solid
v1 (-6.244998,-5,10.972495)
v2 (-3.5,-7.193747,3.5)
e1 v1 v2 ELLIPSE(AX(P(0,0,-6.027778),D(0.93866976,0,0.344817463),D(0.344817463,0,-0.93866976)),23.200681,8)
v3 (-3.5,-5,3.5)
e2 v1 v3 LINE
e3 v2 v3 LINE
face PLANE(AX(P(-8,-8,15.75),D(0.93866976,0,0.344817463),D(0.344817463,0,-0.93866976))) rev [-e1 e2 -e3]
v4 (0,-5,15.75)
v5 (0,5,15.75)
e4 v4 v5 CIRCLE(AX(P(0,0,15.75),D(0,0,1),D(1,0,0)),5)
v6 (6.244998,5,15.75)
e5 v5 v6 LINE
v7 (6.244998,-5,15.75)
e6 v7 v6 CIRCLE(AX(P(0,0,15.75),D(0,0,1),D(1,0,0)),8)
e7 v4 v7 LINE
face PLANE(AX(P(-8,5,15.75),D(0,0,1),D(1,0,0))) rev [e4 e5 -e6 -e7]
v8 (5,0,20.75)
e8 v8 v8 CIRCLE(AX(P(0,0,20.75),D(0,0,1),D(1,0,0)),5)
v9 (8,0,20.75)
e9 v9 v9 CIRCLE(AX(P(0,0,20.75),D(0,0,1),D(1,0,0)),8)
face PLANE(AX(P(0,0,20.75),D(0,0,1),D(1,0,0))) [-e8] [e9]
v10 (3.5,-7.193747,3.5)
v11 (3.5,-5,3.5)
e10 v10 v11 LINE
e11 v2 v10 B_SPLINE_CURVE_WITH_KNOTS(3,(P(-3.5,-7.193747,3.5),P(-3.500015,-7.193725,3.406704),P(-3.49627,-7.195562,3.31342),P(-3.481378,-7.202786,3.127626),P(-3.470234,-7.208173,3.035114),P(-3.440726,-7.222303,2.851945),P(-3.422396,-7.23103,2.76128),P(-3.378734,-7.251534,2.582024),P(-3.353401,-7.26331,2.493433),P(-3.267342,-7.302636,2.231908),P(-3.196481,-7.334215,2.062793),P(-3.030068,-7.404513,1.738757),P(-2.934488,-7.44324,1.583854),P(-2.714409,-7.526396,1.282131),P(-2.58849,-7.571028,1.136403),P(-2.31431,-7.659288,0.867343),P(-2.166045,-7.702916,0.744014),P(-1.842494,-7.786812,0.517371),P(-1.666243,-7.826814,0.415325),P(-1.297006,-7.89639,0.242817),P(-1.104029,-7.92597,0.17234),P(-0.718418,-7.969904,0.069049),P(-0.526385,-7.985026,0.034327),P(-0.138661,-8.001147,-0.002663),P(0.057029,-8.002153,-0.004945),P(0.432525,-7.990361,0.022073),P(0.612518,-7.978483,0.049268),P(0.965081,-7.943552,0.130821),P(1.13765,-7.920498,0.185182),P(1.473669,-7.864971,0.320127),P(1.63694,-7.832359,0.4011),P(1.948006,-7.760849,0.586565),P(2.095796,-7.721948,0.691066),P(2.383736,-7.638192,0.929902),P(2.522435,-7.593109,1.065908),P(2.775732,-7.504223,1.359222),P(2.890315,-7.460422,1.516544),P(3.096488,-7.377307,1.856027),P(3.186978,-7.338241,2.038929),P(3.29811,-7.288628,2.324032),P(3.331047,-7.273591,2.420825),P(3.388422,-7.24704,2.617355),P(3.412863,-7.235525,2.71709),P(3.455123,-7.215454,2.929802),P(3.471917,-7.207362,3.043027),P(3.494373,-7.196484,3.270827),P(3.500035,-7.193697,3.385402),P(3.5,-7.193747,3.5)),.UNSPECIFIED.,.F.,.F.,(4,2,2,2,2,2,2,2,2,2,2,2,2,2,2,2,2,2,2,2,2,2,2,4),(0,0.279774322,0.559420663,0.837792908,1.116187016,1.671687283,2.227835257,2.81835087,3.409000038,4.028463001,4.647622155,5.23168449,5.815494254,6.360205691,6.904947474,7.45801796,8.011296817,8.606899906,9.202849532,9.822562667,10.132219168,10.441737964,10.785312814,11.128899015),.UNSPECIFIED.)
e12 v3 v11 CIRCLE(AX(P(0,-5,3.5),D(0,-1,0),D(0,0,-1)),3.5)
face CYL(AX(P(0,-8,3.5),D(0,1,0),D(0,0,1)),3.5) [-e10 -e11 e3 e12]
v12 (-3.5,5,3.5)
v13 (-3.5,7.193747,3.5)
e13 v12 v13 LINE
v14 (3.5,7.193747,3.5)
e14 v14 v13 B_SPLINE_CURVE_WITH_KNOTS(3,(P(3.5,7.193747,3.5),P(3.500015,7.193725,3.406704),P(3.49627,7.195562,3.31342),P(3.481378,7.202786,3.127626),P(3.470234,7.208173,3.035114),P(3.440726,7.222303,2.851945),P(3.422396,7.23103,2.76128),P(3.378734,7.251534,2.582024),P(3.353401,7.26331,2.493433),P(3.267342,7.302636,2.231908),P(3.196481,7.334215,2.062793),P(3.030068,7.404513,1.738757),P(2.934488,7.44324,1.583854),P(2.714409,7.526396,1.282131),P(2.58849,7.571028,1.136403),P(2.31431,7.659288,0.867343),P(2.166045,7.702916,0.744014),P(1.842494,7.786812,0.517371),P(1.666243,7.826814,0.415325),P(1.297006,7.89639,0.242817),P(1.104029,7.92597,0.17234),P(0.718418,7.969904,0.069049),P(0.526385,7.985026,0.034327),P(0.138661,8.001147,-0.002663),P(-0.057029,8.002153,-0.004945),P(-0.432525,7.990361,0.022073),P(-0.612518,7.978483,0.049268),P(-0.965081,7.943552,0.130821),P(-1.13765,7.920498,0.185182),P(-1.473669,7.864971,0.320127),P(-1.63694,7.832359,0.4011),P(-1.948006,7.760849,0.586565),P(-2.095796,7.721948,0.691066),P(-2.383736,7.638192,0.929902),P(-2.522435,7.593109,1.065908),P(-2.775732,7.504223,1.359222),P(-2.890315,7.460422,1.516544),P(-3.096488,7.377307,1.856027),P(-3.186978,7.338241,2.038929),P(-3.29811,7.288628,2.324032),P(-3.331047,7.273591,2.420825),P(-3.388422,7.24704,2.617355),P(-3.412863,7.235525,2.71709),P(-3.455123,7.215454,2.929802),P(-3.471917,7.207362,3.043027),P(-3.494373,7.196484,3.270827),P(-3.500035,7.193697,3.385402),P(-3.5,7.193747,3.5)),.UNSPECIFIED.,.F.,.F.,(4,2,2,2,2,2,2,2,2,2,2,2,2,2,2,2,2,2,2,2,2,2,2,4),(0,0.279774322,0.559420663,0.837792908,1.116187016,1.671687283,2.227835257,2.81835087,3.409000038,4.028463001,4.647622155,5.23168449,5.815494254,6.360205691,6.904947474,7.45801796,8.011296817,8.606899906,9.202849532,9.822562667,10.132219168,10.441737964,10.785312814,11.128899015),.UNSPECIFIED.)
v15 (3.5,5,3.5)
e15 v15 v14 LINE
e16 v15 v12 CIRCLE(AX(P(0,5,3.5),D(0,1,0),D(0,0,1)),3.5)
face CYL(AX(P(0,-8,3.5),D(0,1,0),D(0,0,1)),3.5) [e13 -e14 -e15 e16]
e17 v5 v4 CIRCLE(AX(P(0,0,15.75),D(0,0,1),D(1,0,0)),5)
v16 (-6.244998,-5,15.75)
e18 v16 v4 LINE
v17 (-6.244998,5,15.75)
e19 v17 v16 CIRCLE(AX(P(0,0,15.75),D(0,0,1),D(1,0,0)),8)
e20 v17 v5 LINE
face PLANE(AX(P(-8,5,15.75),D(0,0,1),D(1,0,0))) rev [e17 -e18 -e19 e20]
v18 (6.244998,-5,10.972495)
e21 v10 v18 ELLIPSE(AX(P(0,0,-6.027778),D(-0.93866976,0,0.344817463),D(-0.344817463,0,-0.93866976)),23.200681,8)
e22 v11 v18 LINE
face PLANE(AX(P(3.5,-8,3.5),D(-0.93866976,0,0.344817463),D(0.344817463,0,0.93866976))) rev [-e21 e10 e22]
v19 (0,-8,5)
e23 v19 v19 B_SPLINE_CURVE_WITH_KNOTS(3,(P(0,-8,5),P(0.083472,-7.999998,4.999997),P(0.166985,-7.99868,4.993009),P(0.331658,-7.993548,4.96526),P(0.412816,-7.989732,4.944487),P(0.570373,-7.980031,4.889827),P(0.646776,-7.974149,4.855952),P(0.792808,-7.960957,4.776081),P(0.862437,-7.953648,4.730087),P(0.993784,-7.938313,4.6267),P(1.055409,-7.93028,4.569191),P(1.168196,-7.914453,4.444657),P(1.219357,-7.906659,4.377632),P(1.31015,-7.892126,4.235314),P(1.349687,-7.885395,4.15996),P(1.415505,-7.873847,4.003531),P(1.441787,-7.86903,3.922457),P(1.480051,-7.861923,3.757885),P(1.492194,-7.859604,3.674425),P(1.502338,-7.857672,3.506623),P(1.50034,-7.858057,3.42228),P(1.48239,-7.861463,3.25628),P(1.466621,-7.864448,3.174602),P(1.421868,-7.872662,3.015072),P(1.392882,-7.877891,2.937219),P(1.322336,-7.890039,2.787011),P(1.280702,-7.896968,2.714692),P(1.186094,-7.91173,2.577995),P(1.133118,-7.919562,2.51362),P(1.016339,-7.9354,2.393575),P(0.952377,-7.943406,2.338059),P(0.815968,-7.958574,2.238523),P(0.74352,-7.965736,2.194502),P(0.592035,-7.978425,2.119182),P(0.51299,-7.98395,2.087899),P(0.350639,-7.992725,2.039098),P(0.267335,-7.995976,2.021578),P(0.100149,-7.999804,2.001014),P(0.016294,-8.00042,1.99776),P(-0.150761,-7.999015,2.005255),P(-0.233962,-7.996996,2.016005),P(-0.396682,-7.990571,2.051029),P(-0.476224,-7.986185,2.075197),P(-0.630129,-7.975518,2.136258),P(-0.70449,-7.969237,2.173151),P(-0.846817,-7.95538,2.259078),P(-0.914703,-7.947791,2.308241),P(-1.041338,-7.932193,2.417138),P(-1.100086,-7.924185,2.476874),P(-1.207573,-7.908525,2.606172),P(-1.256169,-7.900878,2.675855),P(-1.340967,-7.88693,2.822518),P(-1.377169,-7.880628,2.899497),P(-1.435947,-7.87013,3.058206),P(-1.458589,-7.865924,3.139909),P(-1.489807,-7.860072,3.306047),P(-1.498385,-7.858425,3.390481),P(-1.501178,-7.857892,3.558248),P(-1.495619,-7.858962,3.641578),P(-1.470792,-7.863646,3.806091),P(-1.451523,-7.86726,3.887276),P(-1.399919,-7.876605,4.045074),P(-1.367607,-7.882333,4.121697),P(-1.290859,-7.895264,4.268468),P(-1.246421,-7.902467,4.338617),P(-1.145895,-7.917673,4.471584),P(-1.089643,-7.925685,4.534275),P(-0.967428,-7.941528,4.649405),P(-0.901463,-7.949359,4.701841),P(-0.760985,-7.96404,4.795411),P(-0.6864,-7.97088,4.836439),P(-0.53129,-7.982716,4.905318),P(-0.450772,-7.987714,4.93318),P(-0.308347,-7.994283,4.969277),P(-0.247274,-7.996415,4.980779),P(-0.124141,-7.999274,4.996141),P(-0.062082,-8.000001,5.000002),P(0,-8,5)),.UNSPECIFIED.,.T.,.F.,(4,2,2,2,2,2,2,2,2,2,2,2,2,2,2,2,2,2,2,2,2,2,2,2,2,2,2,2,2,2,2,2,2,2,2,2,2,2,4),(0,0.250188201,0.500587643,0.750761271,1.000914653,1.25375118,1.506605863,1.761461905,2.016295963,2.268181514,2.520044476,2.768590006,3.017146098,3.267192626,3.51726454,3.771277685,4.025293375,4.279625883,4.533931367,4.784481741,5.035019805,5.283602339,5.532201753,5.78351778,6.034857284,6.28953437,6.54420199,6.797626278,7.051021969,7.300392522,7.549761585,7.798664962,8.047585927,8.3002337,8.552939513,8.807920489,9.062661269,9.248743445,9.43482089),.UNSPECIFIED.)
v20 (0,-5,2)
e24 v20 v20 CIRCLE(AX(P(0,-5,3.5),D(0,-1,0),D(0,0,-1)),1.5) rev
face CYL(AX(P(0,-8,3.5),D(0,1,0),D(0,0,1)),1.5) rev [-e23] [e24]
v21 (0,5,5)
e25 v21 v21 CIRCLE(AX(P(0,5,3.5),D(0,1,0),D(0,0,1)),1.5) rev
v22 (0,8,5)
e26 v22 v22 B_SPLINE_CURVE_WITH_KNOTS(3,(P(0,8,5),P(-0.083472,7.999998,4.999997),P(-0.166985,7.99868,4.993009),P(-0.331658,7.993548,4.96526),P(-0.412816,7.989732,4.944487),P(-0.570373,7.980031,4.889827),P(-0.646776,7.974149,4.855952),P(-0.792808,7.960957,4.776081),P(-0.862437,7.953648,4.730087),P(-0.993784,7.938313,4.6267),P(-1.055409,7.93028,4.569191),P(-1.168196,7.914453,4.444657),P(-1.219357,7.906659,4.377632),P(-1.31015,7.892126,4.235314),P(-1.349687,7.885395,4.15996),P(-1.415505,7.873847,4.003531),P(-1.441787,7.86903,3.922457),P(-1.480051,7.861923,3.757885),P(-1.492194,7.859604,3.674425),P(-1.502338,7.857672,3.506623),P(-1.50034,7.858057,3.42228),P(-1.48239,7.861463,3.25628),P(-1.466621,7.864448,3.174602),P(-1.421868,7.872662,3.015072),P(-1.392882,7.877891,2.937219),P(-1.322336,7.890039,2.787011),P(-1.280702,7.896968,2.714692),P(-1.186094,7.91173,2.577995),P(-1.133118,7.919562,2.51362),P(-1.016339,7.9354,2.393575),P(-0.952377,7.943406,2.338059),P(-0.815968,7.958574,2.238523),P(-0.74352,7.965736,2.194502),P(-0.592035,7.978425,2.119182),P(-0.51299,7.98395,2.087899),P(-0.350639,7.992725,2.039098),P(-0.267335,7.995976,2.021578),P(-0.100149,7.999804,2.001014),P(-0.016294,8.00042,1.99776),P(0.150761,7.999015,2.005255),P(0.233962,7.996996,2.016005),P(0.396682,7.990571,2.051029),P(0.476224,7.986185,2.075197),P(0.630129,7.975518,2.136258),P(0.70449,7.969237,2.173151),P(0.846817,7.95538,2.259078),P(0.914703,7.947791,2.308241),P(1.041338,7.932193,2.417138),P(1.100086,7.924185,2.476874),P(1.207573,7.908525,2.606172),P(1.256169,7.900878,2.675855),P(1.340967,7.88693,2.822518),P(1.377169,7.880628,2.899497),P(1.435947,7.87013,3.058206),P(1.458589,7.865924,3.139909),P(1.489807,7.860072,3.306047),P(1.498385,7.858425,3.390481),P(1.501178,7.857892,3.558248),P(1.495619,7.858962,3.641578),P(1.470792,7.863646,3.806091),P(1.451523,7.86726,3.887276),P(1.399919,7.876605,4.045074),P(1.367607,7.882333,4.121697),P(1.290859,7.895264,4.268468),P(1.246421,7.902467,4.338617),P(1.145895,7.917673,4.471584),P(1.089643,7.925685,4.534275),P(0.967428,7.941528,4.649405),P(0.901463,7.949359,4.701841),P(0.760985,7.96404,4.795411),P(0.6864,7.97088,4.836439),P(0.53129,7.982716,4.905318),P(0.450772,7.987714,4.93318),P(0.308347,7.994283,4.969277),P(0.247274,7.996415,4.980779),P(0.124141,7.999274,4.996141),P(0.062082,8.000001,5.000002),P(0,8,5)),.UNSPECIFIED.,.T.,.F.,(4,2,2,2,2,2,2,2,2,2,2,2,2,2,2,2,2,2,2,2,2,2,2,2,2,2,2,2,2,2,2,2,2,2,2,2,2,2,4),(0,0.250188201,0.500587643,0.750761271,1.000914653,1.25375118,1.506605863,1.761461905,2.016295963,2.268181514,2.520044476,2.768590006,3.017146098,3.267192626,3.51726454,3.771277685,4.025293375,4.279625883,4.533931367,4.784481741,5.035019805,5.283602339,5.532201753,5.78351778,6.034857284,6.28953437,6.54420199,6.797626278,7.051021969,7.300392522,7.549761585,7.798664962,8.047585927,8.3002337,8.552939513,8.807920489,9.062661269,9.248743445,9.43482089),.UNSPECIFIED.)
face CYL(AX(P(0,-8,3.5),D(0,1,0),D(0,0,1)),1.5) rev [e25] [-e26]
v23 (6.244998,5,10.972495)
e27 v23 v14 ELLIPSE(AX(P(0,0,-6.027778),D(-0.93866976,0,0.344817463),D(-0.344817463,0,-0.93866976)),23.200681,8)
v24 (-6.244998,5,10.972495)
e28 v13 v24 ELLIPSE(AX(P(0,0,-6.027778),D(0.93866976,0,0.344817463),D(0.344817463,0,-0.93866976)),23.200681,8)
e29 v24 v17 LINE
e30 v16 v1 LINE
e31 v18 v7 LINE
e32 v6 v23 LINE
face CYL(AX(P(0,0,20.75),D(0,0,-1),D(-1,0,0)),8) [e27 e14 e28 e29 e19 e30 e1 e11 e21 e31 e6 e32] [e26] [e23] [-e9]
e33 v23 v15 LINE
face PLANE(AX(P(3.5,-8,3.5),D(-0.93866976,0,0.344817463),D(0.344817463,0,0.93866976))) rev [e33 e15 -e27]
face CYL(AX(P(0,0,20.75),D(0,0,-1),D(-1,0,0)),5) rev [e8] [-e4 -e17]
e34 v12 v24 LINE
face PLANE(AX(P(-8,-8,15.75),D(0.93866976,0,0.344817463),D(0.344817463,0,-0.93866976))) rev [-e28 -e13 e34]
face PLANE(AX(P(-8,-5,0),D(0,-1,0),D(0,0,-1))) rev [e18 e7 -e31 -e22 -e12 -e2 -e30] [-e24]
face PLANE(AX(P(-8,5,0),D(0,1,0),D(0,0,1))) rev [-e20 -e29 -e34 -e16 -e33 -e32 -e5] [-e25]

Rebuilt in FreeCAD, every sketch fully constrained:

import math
import FreeCAD as App
import Part
import Sketcher
from FreeCAD import Vector
Q = App.Units.Quantity

doc = App.newDocument("Part")
body = doc.addObject("PartDesign::Body", "Body")

sketch1 = doc.addObject("Sketcher::SketchObject", "Sketch")
body.addObject(sketch1)
sketch1.AttachmentSupport = (doc.XY_Plane, [""])
sketch1.MapMode = "FlatFace"
sketch1.addGeometry(Part.Circle(Vector(0, 0, 0), Vector(0, 0, 1), 8), False)
sketch1.addGeometry(Part.Circle(Vector(0, 0, 0), Vector(0, 0, 1), 5), False)
sketch1.addConstraint(Sketcher.Constraint("Coincident", 0, 3, -1, 1))
sketch1.addConstraint(Sketcher.Constraint("Coincident", 1, 3, -1, 1))
sketch1.addConstraint(Sketcher.Constraint("Diameter", 0, Q("16 mm")))
sketch1.addConstraint(Sketcher.Constraint("Diameter", 1, Q("10 mm")))
pad1 = doc.addObject("PartDesign::Pad", "Pad")
body.addObject(pad1)
pad1.Profile = sketch1
pad1.Length = 20.75

sketch2 = doc.addObject("Sketcher::SketchObject", "Sketch001")
body.addObject(sketch2)
sketch2.AttachmentSupport = (doc.XZ_Plane, [""])
sketch2.MapMode = "FlatFace"
sketch2.addGeometry(Part.Circle(Vector(0, 3.5, 0), Vector(0, 0, 1), 1.5), False)
sketch2.addGeometry(Part.LineSegment(Vector(-8, -2.2, 0), Vector(-8, 15.8, 0)), False)
sketch2.addGeometry(Part.LineSegment(Vector(-8, 15.8, 0), Vector(-3.5, 3.5, 0)), False)
sketch2.addGeometry(Part.ArcOfCircle(Part.Circle(Vector(0, 3.5, 0), Vector(0, 0, 1), 3.5), math.radians(180), math.radians(360)), False)
sketch2.addGeometry(Part.LineSegment(Vector(3.5, 3.5, 0), Vector(8, 15.8, 0)), False)
sketch2.addGeometry(Part.LineSegment(Vector(8, 15.8, 0), Vector(8, -2.2, 0)), False)
sketch2.addGeometry(Part.LineSegment(Vector(8, -2.2, 0), Vector(-8, -2.2, 0)), False)
sketch2.addConstraint(Sketcher.Constraint("Coincident", 1, 2, 2, 1))
sketch2.addConstraint(Sketcher.Constraint("Coincident", 2, 2, 3, 1))
sketch2.addConstraint(Sketcher.Constraint("Coincident", 3, 2, 4, 1))
sketch2.addConstraint(Sketcher.Constraint("Coincident", 4, 2, 5, 1))
sketch2.addConstraint(Sketcher.Constraint("Coincident", 5, 2, 6, 1))
sketch2.addConstraint(Sketcher.Constraint("Coincident", 6, 2, 1, 1))
sketch2.addConstraint(Sketcher.Constraint("Vertical", 1))
sketch2.addConstraint(Sketcher.Constraint("Vertical", 5))
sketch2.addConstraint(Sketcher.Constraint("Horizontal", 6))
sketch2.addConstraint(Sketcher.Constraint("Coincident", 3, 3, 0, 3))
sketch2.addConstraint(Sketcher.Constraint("Symmetric", 2, 2, 3, 2, -2))
sketch2.addConstraint(Sketcher.Constraint("Symmetric", 1, 2, 4, 2, -2))
sketch2.addConstraint(Sketcher.Constraint("Horizontal", 3, 3, 2, 2))
sketch2.addConstraint(Sketcher.Constraint("Diameter", 0, Q("3 mm")))
sketch2.addConstraint(Sketcher.Constraint("Radius", 3, Q("3.5 mm")))
sketch2.addConstraint(Sketcher.Constraint("DistanceX", 6, 2, 6, 1, Q("16 mm")))
sketch2.addConstraint(Sketcher.Constraint("DistanceY", 1, 1, 1, 2, Q("18 mm")))
sketch2.addConstraint(Sketcher.Constraint("DistanceY", -1, 1, 0, 3, Q("3.5 mm")))
sketch2.addConstraint(Sketcher.Constraint("DistanceY", -1, 1, 1, 2, Q("15.75 mm")))
pocket1 = doc.addObject("PartDesign::Pocket", "Pocket")
body.addObject(pocket1)
pocket1.Profile = sketch2
pocket1.Type = "ThroughAll"
pocket1.Midplane = True

sketch3 = doc.addObject("Sketcher::SketchObject", "Sketch002")
body.addObject(sketch3)
sketch3.AttachmentSupport = (doc.YZ_Plane, [""])
sketch3.MapMode = "FlatFace"
sketch3.addGeometry(Part.LineSegment(Vector(5, 16, 0), Vector(-5, 16, 0)), False)
sketch3.addGeometry(Part.LineSegment(Vector(-5, 16, 0), Vector(-5, 0, 0)), False)
sketch3.addGeometry(Part.LineSegment(Vector(-5, 0, 0), Vector(5, 0, 0)), False)
sketch3.addGeometry(Part.LineSegment(Vector(5, 0, 0), Vector(5, 16, 0)), False)
sketch3.addConstraint(Sketcher.Constraint("Coincident", 0, 2, 1, 1))
sketch3.addConstraint(Sketcher.Constraint("Coincident", 1, 2, 2, 1))
sketch3.addConstraint(Sketcher.Constraint("Coincident", 2, 2, 3, 1))
sketch3.addConstraint(Sketcher.Constraint("Coincident", 3, 2, 0, 1))
sketch3.addConstraint(Sketcher.Constraint("Horizontal", 0))
sketch3.addConstraint(Sketcher.Constraint("Vertical", 1))
sketch3.addConstraint(Sketcher.Constraint("Horizontal", 2))
sketch3.addConstraint(Sketcher.Constraint("Vertical", 3))
sketch3.addConstraint(Sketcher.Constraint("Symmetric", 1, 2, 2, 2, -1, 1))
sketch3.addConstraint(Sketcher.Constraint("DistanceX", 0, 2, 0, 1, Q("10 mm")))
sketch3.addConstraint(Sketcher.Constraint("DistanceY", 1, 2, 1, 1, Q("15.75 mm")))
pocket2 = doc.addObject("PartDesign::Pocket", "Pocket001")
body.addObject(pocket2)
pocket2.Profile = sketch3
pocket2.Type = "ThroughAll"
pocket2.Midplane = True

doc.recompute()
